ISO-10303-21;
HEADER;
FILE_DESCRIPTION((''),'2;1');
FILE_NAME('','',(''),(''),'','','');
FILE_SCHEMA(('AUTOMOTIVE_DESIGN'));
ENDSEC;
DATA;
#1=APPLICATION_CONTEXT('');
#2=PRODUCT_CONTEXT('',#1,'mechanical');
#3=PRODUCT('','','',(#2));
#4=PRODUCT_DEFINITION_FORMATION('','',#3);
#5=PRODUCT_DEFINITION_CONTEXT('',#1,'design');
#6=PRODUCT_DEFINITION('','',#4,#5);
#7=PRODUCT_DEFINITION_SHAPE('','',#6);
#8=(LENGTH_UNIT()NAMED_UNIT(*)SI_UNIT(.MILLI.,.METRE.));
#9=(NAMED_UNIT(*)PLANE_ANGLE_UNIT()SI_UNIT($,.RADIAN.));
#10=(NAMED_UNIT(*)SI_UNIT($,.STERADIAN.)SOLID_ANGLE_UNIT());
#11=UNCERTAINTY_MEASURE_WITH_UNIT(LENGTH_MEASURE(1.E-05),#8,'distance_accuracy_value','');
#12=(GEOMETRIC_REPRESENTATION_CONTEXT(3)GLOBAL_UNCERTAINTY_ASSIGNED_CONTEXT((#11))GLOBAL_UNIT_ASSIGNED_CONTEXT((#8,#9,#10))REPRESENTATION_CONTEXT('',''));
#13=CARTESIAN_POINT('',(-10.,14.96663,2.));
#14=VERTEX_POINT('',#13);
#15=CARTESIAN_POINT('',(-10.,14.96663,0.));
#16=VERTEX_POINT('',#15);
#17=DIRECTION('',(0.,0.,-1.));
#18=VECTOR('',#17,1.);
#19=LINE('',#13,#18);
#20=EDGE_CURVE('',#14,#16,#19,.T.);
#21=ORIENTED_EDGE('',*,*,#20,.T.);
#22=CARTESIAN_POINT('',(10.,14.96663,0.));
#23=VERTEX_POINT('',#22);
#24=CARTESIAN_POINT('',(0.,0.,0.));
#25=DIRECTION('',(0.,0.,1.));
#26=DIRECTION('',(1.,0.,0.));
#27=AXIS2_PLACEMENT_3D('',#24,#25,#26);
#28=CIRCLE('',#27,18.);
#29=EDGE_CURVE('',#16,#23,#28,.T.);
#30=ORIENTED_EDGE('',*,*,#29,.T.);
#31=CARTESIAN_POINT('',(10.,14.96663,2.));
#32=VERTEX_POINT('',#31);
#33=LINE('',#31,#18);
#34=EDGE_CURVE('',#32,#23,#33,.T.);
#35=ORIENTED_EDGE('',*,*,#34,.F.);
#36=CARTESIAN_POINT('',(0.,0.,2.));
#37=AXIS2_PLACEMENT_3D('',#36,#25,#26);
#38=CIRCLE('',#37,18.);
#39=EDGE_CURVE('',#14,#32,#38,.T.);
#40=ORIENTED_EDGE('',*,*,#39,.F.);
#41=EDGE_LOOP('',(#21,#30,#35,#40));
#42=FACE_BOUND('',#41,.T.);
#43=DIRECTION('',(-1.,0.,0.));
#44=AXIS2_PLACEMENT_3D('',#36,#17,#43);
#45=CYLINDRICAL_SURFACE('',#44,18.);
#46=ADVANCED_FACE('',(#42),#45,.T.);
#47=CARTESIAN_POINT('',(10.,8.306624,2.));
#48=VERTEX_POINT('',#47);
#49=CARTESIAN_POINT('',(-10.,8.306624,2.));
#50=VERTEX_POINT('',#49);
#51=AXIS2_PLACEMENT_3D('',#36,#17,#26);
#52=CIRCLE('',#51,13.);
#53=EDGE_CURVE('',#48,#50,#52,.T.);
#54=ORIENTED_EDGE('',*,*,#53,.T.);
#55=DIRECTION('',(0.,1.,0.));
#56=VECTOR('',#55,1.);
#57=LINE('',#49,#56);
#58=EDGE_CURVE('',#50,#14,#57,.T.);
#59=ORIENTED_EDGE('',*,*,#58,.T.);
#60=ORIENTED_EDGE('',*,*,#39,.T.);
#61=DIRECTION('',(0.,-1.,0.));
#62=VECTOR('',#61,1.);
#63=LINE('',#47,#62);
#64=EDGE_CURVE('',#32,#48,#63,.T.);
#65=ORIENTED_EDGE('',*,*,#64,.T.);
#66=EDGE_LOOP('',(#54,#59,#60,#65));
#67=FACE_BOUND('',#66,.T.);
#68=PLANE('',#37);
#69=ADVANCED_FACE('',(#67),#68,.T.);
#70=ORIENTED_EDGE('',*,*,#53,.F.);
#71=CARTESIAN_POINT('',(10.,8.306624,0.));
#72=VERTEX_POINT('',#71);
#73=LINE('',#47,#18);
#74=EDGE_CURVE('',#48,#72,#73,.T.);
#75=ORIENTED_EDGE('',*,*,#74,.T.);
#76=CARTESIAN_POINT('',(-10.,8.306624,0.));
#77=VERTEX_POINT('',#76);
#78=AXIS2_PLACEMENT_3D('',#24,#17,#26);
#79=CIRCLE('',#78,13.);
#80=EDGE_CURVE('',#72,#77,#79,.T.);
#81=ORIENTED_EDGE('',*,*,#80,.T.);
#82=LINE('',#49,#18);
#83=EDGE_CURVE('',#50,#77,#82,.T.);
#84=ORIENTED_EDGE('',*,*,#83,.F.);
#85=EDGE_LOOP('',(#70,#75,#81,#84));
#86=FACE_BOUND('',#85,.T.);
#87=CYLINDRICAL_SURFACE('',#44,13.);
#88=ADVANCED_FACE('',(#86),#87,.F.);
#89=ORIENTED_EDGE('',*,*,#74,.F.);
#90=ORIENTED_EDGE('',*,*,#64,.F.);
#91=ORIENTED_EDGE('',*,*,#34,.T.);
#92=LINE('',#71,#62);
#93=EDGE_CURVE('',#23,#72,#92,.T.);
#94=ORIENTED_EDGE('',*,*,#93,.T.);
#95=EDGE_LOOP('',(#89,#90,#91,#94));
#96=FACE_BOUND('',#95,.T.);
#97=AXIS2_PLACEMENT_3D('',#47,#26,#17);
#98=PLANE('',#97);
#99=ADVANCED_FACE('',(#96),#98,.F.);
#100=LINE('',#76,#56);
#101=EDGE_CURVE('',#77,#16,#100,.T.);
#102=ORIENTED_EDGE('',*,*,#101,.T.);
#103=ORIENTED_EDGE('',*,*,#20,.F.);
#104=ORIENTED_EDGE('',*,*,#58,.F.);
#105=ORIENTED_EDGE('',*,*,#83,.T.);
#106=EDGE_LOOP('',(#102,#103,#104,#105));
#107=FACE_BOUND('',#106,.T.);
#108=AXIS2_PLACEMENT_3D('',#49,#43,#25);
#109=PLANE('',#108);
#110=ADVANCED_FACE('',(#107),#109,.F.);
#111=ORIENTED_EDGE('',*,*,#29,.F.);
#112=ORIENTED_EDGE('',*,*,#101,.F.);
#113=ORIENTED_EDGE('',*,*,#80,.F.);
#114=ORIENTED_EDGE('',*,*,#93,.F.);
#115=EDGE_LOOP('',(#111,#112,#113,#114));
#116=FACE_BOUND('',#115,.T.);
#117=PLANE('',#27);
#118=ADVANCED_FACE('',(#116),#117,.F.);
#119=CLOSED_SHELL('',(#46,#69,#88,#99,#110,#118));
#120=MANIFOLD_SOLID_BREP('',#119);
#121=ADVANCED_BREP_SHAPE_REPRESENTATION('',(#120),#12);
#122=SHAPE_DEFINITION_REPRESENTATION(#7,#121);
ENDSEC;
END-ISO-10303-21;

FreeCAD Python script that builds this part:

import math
import FreeCAD as App
import Part
import Sketcher

V = App.Vector

doc = App.newDocument("Part")
body = doc.addObject("PartDesign::Body", "Body")

sketch1 = body.newObject("Sketcher::SketchObject", "Sketch")
sketch1.AttachmentSupport = (doc.getObject("XY_Plane"), [""])
sketch1.MapMode = "FlatFace"
sketch1.addGeometry(Part.LineSegment(V(-10, 8.306624, 0), V(-10, 14.96663, 0)), False)
sketch1.addGeometry(Part.ArcOfCircle(Part.Circle(V(0, 0, 0), V(0, 0, 1), 18), math.radians(123.748989), math.radians(416.251011)), False)
sketch1.addGeometry(Part.LineSegment(V(10, 14.96663, 0), V(10, 8.306624, 0)), False)
sketch1.addGeometry(Part.ArcOfCircle(Part.Circle(V(0, 0, 0), V(0, 0, 1), 13), math.radians(140.284863), math.radians(399.715137)), False)
sketch1.addConstraint(Sketcher.Constraint("Coincident", 0, 2, 1, 1))
sketch1.addConstraint(Sketcher.Constraint("Coincident", 1, 2, 2, 1))
sketch1.addConstraint(Sketcher.Constraint("Coincident", 2, 2, 3, 2))
sketch1.addConstraint(Sketcher.Constraint("Coincident", 3, 1, 0, 1))
sketch1.addConstraint(Sketcher.Constraint("Vertical", 0))
sketch1.addConstraint(Sketcher.Constraint("Vertical", 2))
sketch1.addConstraint(Sketcher.Constraint("Coincident", 1, 3, -1, 1))
sketch1.addConstraint(Sketcher.Constraint("Coincident", 3, 3, -1, 1))
sketch1.addConstraint(Sketcher.Constraint("Horizontal", 0, 2, 1, 2))
sketch1.addConstraint(Sketcher.Constraint("Radius", 1, 18.0))
sketch1.addConstraint(Sketcher.Constraint("Radius", 3, 13.0))
sketch1.addConstraint(Sketcher.Constraint("DistanceX", 0, 2, -1, 1, 10.0))
pad1 = body.newObject("PartDesign::Pad", "Pad")
pad1.Profile = sketch1
pad1.Length = 2

doc.recompute()
